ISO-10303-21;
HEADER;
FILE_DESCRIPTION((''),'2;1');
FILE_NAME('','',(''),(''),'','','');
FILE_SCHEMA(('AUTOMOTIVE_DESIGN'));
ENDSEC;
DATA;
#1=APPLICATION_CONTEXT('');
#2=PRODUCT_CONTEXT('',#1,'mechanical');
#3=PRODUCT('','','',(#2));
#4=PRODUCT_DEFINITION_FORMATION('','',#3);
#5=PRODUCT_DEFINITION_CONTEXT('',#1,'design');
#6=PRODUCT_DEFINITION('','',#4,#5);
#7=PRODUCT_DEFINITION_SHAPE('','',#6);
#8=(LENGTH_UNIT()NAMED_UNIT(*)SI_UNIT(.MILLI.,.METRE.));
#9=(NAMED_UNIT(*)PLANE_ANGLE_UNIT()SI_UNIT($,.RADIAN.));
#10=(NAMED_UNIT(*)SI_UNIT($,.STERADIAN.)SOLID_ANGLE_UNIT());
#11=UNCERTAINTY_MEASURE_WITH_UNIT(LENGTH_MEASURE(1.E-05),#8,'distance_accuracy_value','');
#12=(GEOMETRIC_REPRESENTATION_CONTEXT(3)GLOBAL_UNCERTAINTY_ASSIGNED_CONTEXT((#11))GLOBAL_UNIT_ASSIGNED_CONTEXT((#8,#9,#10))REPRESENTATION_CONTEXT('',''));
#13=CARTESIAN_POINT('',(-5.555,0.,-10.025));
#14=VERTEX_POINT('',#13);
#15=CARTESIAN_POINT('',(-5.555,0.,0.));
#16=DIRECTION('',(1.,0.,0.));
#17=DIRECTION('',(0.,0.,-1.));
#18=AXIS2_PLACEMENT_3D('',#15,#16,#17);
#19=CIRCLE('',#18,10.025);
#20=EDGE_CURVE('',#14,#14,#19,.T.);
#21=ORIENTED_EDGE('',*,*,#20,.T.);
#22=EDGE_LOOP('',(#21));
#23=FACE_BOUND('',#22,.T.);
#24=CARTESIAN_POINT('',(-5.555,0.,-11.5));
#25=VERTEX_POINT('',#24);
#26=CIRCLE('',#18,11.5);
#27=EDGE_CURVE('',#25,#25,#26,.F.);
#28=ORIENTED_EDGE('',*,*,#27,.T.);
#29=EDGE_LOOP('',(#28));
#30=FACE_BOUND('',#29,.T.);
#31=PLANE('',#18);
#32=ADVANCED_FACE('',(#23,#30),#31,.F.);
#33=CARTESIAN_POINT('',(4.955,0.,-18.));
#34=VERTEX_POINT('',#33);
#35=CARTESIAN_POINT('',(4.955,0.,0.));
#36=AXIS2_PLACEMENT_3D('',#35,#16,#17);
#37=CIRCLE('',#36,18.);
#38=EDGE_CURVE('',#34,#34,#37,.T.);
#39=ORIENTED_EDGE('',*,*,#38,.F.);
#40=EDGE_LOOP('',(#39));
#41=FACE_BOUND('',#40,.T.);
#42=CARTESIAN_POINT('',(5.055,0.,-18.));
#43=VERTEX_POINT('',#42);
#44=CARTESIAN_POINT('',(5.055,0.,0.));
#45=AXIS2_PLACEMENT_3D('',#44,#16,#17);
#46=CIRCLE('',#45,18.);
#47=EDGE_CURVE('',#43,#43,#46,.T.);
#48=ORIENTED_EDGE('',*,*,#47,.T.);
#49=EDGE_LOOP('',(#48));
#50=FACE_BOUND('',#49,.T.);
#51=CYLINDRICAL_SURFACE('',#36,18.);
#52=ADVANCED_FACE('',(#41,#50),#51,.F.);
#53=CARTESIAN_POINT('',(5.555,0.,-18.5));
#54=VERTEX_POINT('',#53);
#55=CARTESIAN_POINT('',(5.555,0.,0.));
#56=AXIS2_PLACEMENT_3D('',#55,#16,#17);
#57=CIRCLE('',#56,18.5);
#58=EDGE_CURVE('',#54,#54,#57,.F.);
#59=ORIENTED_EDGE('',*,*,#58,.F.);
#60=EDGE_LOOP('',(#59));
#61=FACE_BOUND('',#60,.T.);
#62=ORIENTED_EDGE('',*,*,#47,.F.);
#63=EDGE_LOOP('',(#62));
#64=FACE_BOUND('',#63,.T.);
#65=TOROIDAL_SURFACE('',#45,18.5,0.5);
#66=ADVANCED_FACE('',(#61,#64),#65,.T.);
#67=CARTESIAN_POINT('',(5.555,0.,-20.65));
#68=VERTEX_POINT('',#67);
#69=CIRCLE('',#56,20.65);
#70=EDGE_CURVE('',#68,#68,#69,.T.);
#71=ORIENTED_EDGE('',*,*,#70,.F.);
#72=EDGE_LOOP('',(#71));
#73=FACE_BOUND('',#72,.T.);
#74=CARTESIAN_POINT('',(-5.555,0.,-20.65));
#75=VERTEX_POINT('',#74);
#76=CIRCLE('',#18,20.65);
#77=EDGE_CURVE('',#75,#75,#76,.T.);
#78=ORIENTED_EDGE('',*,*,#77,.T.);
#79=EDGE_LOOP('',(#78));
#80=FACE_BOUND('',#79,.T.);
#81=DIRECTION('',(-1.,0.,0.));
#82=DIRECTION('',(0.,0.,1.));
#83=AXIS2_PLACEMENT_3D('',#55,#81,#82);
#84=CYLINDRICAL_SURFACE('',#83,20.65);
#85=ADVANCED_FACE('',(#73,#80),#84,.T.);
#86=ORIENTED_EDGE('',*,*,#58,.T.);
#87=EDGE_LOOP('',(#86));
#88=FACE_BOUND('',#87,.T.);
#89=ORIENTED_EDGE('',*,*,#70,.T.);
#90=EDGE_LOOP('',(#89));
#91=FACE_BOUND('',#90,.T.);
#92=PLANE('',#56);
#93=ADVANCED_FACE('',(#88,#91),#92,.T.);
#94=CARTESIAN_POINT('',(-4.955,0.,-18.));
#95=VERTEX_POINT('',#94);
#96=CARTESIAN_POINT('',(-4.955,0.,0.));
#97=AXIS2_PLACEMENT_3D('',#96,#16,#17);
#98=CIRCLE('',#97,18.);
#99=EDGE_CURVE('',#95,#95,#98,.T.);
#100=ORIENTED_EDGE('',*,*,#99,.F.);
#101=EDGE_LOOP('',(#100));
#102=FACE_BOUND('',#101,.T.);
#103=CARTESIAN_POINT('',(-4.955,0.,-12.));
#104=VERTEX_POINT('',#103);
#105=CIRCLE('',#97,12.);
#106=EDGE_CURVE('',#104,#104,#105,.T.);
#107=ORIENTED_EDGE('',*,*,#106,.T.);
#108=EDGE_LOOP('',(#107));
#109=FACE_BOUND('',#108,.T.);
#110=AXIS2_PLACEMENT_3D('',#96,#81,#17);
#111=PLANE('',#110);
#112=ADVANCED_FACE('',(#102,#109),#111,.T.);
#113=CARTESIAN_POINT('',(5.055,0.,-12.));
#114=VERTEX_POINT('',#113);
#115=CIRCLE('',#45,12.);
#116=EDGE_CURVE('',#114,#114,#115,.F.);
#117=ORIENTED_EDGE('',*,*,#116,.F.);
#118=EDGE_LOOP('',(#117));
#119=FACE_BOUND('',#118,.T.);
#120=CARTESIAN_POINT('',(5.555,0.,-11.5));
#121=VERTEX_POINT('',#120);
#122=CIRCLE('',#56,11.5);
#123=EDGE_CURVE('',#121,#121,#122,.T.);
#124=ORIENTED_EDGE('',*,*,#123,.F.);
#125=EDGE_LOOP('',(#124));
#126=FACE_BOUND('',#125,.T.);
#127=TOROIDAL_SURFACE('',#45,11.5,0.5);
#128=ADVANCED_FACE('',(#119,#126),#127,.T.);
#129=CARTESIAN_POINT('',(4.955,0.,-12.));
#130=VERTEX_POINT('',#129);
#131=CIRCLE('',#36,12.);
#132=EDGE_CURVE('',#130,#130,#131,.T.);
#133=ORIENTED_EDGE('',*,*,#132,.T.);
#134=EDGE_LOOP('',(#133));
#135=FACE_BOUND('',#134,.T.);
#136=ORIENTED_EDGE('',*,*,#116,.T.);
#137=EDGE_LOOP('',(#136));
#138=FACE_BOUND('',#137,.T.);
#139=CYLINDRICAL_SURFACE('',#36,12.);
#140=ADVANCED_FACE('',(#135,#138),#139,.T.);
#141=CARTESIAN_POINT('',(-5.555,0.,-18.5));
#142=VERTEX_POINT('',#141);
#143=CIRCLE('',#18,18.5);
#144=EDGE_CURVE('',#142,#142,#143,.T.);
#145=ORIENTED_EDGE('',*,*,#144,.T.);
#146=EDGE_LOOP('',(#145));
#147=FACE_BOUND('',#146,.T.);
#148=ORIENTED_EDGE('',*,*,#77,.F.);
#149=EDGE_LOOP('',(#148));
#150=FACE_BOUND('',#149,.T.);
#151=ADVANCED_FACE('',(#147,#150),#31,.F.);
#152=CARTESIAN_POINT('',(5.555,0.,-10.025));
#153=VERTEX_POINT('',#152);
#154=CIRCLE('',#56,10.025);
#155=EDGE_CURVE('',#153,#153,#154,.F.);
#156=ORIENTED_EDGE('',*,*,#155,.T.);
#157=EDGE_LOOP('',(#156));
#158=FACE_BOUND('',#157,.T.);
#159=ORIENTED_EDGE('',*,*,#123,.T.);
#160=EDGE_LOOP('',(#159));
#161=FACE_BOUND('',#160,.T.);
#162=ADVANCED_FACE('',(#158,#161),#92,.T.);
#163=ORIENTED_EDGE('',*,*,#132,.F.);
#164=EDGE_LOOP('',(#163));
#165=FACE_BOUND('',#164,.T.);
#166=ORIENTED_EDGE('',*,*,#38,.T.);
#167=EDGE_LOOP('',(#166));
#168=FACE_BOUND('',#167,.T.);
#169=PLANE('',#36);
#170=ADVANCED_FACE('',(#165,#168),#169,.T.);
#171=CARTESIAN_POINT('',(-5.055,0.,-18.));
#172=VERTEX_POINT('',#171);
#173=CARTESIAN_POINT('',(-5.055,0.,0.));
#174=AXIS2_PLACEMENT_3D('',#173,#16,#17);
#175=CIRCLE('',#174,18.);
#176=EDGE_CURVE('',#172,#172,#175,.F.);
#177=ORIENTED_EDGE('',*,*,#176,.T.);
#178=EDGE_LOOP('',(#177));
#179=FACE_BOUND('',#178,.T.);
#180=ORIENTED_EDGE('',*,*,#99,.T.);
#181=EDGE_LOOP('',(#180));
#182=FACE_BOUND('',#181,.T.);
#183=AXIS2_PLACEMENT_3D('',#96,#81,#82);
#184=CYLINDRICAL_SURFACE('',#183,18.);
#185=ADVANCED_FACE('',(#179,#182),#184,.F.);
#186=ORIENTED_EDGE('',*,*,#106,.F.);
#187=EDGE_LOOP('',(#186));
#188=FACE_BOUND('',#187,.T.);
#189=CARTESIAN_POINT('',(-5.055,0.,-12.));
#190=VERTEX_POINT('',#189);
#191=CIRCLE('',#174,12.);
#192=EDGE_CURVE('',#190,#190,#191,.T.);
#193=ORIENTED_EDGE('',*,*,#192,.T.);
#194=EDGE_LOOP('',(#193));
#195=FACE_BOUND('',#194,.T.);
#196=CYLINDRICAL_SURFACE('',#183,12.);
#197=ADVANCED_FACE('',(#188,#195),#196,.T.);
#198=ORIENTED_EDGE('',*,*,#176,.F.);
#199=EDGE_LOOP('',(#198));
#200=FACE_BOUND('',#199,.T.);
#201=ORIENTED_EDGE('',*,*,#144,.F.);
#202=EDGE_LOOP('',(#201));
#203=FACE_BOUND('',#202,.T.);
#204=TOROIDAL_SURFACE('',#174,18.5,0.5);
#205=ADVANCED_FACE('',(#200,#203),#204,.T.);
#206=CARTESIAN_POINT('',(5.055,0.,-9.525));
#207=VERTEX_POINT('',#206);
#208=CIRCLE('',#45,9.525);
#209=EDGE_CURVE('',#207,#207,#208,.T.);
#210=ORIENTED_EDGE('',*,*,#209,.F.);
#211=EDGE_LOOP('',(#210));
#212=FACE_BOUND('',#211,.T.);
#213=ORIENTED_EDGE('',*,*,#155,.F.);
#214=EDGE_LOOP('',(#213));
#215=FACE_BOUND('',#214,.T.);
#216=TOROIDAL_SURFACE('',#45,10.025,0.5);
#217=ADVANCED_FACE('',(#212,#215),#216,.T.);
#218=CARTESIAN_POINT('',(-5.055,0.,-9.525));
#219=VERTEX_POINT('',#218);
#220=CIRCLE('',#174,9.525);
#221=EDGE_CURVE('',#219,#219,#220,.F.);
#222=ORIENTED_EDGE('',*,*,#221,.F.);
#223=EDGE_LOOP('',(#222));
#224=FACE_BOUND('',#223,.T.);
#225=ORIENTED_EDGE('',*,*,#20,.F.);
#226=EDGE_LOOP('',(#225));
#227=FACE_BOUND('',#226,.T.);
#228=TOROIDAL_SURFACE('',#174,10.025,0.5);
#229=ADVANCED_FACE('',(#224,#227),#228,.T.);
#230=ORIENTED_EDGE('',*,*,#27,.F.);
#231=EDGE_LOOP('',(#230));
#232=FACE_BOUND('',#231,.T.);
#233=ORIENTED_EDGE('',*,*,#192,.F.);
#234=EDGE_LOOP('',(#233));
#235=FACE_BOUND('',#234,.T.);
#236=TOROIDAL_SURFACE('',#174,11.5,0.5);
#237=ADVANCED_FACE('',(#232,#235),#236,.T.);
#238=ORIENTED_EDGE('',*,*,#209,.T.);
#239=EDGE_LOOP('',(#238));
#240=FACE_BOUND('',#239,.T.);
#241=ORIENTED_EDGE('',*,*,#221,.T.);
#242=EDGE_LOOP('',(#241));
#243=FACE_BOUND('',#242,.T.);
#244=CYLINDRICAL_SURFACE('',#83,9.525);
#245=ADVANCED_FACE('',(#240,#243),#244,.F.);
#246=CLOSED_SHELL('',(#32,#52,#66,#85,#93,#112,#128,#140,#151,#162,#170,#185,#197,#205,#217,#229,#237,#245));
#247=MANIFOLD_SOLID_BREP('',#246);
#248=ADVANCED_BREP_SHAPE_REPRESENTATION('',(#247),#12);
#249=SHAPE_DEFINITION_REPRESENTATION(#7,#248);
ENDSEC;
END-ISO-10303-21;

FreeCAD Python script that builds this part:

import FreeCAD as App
import Part
import Sketcher

V = App.Vector
Q = App.Units.Quantity


def edges_at(feature, points):
    """Names of the edges that pass closest to the given points."""
    edges = feature.Shape.Edges
    near = lambda p: min(range(len(edges)), key=lambda i: edges[i].distToShape(Part.Vertex(*p))[0])
    return sorted({f"Edge{near(p) + 1}" for p in points})

doc = App.newDocument("Part")
body = doc.addObject("PartDesign::Body", "Body")

sketch1 = body.newObject("Sketcher::SketchObject", "Sketch")
sketch1.AttachmentSupport = (doc.getObject("YZ_Plane"), [""])
sketch1.MapMode = "FlatFace"
sketch1.addGeometry([
    Part.Circle(V(0, 0, 0), V(0, 0, 1), 21),
    Part.Circle(V(0, 0, 0), V(0, 0, 1), 10),
], False)
sketch1.addConstraint([
    Sketcher.Constraint("Coincident", 0, 3, -1, 1),
    Sketcher.Constraint("Coincident", 1, 3, -1, 1),
    Sketcher.Constraint("Diameter", 0, Q("41.3 mm")),
    Sketcher.Constraint("Diameter", 1, Q("19.05 mm")),
])
pad1 = body.newObject("PartDesign::Pad", "Pad")
pad1.Profile = sketch1
pad1.Length = 11.11
pad1.Midplane = True

sketch2 = body.newObject("Sketcher::SketchObject", "Sketch001")
sketch2.AttachmentSupport = (doc.getObject("YZ_Plane"), [""])
sketch2.MapMode = "FlatFace"
sketch2.AttachmentOffset = App.Placement(V(0, 0, 5.555), App.Rotation())
sketch2.addGeometry([
    Part.Circle(V(0, 0, 0), V(0, 0, 1), 18),
    Part.Circle(V(0, 0, 0), V(0, 0, 1), 12),
], False)
sketch2.addConstraint([
    Sketcher.Constraint("Coincident", 0, 3, -1, 1),
    Sketcher.Constraint("Coincident", 1, 3, -1, 1),
    Sketcher.Constraint("Diameter", 0, Q("36 mm")),
    Sketcher.Constraint("Diameter", 1, Q("24 mm")),
])
pocket1 = body.newObject("PartDesign::Pocket", "Pocket")
pocket1.Profile = sketch2
pocket1.Length = 0.6
doc.recompute()

mirrored = body.newObject("PartDesign::Mirrored", "Mirrored")
mirrored.Originals = [pocket1]
mirrored.MirrorPlane = (doc.getObject("YZ_Plane"), [""])
body.Tip = mirrored
doc.recompute()

fillet = body.newObject("PartDesign::Fillet", "Fillet")
fillet.Base = (mirrored, edges_at(mirrored, [
    (5.555, 0, 18),
    (5.555, 0, 12),
    (-5.555, 0, 12),
    (-5.555, 0, 18),
    (-5.555, 0, 9.525),
    (5.555, 0, 9.525),
]))
fillet.Radius = 0.5

doc.recompute()
